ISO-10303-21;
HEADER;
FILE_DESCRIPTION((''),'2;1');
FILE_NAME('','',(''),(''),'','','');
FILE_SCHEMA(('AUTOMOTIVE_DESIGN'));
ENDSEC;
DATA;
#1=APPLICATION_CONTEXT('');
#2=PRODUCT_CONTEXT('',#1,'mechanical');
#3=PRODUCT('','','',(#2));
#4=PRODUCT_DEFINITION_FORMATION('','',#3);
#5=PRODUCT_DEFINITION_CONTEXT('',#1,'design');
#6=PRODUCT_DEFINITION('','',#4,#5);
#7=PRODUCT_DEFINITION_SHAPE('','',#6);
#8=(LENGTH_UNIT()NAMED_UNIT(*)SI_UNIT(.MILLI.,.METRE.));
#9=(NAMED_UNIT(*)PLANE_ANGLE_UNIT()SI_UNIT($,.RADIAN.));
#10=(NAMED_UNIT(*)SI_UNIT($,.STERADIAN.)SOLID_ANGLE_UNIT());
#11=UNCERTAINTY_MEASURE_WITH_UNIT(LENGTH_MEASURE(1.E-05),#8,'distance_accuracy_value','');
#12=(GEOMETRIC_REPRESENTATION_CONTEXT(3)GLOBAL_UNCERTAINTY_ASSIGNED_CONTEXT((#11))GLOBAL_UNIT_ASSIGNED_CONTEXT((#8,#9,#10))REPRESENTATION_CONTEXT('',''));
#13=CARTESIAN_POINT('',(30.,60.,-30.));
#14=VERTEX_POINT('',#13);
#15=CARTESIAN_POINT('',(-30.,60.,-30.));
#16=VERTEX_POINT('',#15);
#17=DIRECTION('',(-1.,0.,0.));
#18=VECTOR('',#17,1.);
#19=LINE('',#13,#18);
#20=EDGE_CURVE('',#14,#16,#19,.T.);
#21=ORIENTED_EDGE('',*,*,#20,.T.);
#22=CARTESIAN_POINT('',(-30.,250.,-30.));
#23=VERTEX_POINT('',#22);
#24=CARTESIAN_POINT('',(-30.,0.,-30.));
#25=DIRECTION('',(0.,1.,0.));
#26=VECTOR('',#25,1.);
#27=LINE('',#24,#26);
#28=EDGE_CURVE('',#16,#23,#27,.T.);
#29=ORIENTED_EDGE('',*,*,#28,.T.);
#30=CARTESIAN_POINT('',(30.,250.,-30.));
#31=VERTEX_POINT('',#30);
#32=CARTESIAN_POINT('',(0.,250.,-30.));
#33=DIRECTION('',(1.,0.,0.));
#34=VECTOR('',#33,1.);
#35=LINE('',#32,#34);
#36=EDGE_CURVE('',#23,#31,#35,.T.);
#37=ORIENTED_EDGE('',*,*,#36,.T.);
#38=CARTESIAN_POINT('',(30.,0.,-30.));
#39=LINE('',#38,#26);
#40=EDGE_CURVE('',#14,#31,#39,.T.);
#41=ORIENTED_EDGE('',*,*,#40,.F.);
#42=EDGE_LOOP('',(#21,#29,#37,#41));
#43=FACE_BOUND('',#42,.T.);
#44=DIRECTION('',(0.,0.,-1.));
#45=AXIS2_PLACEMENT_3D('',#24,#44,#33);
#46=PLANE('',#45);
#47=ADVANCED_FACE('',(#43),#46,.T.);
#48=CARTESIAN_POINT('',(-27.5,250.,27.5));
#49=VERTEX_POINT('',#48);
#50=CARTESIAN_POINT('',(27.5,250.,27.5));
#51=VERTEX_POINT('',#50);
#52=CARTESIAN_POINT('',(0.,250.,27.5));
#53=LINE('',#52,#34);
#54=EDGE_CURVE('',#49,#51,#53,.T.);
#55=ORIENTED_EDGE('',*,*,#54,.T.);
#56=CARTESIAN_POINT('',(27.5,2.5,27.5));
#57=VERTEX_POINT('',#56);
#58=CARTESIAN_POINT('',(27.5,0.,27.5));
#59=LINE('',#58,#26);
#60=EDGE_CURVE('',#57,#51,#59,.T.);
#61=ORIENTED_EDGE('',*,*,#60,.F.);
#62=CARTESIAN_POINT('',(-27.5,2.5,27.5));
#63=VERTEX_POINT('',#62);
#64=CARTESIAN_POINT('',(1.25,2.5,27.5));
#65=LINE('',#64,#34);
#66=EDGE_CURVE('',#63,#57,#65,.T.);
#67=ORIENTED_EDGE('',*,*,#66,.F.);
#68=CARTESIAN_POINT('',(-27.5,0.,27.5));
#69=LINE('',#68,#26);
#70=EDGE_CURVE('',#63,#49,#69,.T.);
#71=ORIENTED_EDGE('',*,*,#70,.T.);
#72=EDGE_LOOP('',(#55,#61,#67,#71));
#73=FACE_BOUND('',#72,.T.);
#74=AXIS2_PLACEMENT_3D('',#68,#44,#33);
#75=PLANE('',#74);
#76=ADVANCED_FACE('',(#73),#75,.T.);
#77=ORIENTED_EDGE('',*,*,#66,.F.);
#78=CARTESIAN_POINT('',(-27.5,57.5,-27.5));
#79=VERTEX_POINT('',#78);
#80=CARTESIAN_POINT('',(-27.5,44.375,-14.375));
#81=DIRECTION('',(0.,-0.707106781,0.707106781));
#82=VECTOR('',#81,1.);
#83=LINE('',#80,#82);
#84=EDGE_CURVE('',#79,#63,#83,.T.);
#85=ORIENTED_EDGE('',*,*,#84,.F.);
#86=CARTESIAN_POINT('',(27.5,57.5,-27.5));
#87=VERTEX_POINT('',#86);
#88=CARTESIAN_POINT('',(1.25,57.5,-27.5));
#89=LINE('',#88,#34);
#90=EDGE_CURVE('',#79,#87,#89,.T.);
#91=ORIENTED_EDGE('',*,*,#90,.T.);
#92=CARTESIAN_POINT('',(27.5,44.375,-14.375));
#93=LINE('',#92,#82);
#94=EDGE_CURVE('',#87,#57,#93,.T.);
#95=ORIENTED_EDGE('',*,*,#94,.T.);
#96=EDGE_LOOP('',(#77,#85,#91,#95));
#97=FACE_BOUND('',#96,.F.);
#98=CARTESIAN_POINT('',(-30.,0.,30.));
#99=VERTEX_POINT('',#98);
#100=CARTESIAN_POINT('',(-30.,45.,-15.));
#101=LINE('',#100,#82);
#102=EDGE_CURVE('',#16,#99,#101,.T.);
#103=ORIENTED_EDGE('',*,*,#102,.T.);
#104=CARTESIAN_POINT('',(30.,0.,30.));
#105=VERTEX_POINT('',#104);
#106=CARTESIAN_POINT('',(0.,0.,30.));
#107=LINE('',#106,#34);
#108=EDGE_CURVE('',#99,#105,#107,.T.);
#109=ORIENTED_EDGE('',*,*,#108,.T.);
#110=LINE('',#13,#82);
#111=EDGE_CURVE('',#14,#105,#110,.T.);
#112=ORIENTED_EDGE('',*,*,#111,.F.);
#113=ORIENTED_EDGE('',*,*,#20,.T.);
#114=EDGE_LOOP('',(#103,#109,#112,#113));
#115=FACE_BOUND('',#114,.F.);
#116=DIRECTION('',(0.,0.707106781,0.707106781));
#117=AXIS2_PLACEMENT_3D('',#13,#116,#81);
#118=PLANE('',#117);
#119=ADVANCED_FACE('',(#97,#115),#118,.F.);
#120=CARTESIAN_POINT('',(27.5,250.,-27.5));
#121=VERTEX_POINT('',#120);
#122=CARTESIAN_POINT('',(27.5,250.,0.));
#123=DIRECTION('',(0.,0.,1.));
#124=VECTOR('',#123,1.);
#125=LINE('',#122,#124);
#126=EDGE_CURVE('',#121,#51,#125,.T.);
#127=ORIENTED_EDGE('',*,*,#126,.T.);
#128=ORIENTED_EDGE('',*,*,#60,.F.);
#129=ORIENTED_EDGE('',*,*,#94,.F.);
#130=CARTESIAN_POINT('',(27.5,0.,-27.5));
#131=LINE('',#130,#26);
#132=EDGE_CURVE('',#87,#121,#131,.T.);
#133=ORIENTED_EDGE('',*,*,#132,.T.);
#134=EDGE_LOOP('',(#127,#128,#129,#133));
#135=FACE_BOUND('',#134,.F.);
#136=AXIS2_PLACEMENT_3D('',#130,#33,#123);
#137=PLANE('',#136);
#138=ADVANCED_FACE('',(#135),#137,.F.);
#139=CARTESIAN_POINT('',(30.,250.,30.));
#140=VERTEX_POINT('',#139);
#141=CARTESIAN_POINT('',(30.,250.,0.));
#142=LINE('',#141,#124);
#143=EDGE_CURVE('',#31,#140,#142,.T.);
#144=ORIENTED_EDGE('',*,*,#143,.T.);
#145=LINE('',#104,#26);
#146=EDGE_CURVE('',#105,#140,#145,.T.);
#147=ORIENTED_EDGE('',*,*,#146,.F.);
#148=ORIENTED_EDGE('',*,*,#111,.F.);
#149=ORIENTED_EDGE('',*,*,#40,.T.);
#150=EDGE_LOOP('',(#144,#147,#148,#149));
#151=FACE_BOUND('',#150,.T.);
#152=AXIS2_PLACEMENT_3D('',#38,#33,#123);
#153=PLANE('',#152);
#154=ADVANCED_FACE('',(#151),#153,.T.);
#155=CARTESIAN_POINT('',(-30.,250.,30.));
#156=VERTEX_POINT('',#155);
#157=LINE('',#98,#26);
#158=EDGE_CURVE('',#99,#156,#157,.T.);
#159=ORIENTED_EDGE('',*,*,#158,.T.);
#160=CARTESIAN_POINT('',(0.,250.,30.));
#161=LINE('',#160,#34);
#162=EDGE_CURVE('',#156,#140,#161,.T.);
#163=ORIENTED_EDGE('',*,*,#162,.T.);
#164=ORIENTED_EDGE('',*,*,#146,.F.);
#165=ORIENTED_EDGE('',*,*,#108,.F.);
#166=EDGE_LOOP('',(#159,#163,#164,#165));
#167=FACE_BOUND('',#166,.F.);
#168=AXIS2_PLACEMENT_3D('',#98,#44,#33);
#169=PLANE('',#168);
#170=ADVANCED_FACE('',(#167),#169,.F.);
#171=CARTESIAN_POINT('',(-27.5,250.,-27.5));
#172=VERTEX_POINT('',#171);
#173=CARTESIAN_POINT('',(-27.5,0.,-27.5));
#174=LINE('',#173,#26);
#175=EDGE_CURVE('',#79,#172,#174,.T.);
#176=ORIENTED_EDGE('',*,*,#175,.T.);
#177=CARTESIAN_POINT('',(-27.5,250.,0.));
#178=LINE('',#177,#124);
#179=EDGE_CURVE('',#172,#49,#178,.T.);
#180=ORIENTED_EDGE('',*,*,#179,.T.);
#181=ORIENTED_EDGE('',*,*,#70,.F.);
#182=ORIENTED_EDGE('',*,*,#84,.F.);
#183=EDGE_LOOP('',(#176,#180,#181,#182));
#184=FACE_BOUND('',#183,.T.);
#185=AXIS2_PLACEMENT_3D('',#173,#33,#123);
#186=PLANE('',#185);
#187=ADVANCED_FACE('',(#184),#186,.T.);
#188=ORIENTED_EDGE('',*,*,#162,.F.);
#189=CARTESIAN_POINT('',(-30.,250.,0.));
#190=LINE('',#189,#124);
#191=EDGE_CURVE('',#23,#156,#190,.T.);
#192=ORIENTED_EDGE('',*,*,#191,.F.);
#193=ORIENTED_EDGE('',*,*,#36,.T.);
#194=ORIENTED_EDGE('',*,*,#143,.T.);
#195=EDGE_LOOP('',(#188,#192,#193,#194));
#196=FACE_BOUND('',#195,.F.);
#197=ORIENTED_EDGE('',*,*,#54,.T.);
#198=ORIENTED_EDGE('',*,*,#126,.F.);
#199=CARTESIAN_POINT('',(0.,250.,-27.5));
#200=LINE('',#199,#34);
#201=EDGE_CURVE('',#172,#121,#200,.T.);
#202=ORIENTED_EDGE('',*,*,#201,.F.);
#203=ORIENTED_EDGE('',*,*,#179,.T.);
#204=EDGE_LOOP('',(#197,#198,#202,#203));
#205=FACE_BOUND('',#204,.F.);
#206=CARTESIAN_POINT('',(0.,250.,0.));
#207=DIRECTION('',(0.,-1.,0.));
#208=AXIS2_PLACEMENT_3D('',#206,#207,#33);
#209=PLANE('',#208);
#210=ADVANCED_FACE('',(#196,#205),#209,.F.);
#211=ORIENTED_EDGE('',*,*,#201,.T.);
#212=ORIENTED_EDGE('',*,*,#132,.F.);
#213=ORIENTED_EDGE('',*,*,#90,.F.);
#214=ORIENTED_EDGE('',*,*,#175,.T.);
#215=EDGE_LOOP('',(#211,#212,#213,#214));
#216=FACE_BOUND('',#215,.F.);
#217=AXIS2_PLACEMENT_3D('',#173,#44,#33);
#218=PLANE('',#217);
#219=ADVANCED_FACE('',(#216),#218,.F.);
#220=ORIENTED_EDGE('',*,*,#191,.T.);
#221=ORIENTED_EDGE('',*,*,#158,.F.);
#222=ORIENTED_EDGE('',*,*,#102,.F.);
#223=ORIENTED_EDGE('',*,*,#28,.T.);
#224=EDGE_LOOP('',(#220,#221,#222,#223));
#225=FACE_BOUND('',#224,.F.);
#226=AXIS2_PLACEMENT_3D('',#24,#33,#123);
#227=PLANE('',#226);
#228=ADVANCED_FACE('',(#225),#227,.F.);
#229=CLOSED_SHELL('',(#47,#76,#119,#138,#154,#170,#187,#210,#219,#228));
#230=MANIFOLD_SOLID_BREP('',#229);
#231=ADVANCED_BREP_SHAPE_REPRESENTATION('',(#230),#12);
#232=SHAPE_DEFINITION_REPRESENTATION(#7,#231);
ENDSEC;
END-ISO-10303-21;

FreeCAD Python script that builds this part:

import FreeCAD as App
import Part
import Sketcher
from FreeCAD import Vector


def add_polygon(sketch, points):
    """Adds a closed chain of lines whose ends are joined by coincident constraints."""
    first, n = sketch.GeometryCount, len(points)
    for a, b in zip(points, points[1:] + points[:1]):
        sketch.addGeometry(Part.LineSegment(App.Vector(*a, 0), App.Vector(*b, 0)), False)
    for i in range(n):
        sketch.addConstraint(Sketcher.Constraint("Coincident", first + i, 2, first + (i + 1) % n, 1))

doc = App.newDocument("Part")
body = doc.addObject("PartDesign::Body", "Body")

# Sketch on XZ plane
sketch1 = body.newObject("Sketcher::SketchObject", "Sketch")
sketch1.AttachmentSupport = (doc.getObject("XZ_Plane"), [""])
sketch1.MapMode = "FlatFace"
add_polygon(sketch1, [(-30, 30), (-30, -30), (30, -30), (30, 30)])  # lines 0-3
add_polygon(sketch1, [(28, -28), (-28, -28), (-28, 28), (28, 28)])  # lines 4-7
sketch1.addConstraint(Sketcher.Constraint("Vertical", 0))
sketch1.addConstraint(Sketcher.Constraint("Horizontal", 1))
sketch1.addConstraint(Sketcher.Constraint("Vertical", 2))
sketch1.addConstraint(Sketcher.Constraint("Horizontal", 3))
sketch1.addConstraint(Sketcher.Constraint("Horizontal", 4))
sketch1.addConstraint(Sketcher.Constraint("Vertical", 5))
sketch1.addConstraint(Sketcher.Constraint("Horizontal", 6))
sketch1.addConstraint(Sketcher.Constraint("Vertical", 7))
sketch1.addConstraint(Sketcher.Constraint("Symmetric", 0, 2, 2, 2, -1, 1))
sketch1.addConstraint(Sketcher.Constraint("Symmetric", 4, 2, 6, 2, -1, 1))
sketch1.addConstraint(Sketcher.Constraint("Equal", 3, 0))
sketch1.addConstraint(Sketcher.Constraint("Equal", 6, 5))
sketch1.addConstraint(Sketcher.Constraint("DistanceX", 1, 1, 1, 2, 60.0))
sketch1.addConstraint(Sketcher.Constraint("DistanceX", 4, 2, 4, 1, 55.0))
pad1 = body.newObject("PartDesign::Pad", "Pad")
pad1.Profile = sketch1
pad1.Length = 250
pad1.Reversed = True

# Sketch on YZ plane
sketch2 = body.newObject("Sketcher::SketchObject", "Sketch001")
sketch2.AttachmentSupport = (doc.getObject("YZ_Plane"), [""])
sketch2.MapMode = "FlatFace"
sketch2.AttachmentOffset = App.Placement(Vector(0, 0, 30), App.Rotation())
add_polygon(sketch2, [(60, -30), (0, 30), (0, -30)])  # lines 0-2
sketch2.addConstraint(Sketcher.Constraint("Vertical", 1))
sketch2.addConstraint(Sketcher.Constraint("Horizontal", 2))
sketch2.addConstraint(Sketcher.Constraint("Symmetric", 0, 2, 1, 2, -1, 1))
sketch2.addConstraint(Sketcher.Constraint("Equal", 2, 1))
sketch2.addConstraint(Sketcher.Constraint("DistanceX", 2, 1, 2, 2, 60.0))
pocket1 = body.newObject("PartDesign::Pocket", "Pocket")
pocket1.Profile = sketch2
pocket1.Length = 70

doc.recompute()
